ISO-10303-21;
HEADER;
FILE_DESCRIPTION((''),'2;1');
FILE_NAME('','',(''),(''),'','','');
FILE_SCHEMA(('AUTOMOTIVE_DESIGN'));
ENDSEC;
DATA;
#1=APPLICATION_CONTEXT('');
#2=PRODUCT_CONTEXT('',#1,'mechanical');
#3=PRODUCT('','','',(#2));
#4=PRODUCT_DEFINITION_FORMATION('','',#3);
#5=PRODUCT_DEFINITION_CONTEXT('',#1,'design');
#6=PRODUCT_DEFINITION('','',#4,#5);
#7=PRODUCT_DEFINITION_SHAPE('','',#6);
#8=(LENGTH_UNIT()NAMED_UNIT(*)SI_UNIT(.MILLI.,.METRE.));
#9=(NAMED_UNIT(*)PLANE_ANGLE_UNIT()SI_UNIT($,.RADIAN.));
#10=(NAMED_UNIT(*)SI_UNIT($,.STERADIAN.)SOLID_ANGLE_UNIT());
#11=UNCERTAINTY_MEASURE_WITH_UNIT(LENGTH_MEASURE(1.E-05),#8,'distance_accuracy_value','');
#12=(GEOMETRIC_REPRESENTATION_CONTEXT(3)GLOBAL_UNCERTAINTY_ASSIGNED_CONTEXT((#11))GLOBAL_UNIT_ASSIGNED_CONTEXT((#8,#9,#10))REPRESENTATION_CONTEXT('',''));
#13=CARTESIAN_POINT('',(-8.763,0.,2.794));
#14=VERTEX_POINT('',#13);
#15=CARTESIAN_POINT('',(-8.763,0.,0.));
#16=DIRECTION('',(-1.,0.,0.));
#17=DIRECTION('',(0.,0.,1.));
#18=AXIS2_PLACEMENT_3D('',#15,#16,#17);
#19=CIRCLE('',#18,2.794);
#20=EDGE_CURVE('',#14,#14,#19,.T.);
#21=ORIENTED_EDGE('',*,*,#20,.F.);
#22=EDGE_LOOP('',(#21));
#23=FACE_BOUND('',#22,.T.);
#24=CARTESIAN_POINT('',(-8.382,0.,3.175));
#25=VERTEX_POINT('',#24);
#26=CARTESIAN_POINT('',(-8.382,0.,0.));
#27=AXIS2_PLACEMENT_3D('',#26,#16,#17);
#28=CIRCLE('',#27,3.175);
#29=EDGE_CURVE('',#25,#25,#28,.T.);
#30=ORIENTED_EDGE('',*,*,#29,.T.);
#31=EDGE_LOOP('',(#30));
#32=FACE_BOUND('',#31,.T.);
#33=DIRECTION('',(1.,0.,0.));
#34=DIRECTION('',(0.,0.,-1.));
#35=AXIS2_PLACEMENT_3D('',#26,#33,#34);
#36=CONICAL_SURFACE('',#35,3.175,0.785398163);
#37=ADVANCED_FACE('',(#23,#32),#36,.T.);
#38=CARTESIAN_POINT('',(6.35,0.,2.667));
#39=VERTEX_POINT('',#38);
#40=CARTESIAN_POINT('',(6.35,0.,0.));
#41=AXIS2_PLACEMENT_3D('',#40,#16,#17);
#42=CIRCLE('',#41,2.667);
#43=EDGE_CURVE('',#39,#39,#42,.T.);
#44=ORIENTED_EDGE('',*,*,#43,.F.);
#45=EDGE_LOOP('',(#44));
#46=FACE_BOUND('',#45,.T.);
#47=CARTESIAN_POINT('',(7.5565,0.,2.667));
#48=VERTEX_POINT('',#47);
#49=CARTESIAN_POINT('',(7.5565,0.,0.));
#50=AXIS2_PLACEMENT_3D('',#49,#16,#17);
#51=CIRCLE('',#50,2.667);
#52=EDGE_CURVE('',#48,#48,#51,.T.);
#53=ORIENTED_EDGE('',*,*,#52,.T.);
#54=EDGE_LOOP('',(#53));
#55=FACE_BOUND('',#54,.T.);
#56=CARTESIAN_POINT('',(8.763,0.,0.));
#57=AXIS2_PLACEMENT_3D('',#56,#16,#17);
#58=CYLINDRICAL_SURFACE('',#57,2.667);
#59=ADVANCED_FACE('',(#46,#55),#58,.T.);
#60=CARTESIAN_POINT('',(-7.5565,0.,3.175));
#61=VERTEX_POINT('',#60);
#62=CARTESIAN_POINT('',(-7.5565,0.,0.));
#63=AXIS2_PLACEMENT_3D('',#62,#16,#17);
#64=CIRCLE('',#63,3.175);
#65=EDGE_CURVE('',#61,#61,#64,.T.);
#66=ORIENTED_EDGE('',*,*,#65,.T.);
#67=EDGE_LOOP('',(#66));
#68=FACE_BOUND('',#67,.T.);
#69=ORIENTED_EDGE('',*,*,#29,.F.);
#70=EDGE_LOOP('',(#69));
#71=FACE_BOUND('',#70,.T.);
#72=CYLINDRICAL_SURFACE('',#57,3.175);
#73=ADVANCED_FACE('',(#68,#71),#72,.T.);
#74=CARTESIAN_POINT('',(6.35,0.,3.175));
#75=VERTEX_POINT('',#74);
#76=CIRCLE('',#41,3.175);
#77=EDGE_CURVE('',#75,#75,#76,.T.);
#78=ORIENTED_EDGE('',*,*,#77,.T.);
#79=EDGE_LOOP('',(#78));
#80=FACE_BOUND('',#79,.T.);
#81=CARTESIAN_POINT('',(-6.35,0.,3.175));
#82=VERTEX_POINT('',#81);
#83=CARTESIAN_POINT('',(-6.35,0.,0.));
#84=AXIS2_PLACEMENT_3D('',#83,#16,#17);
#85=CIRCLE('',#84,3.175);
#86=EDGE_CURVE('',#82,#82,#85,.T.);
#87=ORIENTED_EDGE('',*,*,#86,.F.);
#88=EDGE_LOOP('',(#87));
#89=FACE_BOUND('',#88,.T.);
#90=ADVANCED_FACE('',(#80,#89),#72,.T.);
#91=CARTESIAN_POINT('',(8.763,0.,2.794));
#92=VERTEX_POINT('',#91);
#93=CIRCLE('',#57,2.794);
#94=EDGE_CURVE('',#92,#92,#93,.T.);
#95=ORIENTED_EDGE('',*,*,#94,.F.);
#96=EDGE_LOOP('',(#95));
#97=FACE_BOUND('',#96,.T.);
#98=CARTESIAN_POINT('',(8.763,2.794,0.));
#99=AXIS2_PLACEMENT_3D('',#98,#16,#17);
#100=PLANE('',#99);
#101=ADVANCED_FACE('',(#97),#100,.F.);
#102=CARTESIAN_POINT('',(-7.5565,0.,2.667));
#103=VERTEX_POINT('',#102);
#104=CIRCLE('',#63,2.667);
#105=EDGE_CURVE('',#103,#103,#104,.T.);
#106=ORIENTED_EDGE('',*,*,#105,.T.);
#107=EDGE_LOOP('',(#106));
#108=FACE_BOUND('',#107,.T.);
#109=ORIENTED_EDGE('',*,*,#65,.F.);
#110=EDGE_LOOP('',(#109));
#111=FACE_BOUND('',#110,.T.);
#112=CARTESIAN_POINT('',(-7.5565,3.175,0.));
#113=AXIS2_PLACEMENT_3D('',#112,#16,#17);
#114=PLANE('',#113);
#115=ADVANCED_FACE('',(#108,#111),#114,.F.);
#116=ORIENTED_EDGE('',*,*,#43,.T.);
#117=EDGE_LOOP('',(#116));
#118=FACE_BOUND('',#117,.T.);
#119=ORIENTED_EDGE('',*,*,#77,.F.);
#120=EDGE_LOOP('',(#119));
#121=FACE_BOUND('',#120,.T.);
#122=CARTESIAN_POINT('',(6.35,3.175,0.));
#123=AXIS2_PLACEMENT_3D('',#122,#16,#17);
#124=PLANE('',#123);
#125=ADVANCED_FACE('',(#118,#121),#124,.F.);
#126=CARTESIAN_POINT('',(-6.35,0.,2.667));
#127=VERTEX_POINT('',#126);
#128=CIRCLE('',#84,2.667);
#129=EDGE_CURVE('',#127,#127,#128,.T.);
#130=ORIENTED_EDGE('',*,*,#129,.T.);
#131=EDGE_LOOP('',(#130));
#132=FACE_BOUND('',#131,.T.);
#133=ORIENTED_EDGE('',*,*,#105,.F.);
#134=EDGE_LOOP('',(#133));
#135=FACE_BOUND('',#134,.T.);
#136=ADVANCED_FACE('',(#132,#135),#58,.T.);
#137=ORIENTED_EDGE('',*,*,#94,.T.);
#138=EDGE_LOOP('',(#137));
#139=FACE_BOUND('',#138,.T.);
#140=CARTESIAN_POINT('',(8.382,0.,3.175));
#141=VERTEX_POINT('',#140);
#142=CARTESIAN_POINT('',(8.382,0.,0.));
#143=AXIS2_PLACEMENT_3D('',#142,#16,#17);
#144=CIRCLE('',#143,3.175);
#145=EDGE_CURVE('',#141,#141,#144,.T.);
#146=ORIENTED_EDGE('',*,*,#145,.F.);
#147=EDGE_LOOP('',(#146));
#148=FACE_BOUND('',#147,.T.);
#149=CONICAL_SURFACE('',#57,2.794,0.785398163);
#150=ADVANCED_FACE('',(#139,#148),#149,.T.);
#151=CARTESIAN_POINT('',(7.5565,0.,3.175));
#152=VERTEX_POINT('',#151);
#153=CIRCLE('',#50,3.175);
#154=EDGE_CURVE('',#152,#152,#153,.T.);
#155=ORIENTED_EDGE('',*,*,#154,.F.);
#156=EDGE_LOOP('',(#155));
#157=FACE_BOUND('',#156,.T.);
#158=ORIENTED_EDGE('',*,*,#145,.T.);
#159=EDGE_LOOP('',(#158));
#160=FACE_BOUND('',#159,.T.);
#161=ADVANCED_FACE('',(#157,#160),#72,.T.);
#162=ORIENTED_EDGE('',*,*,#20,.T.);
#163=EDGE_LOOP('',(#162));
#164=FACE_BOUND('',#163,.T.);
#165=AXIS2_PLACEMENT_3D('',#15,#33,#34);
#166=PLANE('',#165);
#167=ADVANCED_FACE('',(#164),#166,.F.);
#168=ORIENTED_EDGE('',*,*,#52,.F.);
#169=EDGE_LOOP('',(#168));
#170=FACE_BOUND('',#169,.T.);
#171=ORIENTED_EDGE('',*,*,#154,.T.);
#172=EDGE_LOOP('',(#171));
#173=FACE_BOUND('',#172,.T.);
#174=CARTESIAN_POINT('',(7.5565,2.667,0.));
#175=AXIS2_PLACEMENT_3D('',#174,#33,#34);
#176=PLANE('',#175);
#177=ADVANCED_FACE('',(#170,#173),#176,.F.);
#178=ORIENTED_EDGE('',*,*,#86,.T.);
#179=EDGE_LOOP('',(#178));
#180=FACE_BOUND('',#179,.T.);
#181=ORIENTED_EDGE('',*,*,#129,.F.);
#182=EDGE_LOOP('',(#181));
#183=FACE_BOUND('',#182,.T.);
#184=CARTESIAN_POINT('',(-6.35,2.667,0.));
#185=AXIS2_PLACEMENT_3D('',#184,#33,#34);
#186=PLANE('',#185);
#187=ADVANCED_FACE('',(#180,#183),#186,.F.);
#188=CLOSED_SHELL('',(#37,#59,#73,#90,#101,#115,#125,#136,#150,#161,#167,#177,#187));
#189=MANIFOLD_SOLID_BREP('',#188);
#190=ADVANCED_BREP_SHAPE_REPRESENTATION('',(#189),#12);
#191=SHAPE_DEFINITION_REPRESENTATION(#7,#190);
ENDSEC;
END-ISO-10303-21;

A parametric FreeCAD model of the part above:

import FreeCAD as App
import Part
import Sketcher
from FreeCAD import Vector
Q = App.Units.Quantity

doc = App.newDocument("Part")
params = doc.addObject("Spreadsheet::Sheet", "Params")
for row, (alias, value) in enumerate([
    ("sketch1_width", "0.5 in"),
    ("sketch1_width2", "0.69 in"),
    ("sketch1_height", "0.11 in"),
    ("sketch1_height2", "0.02 in"),
    ("revolution_angle", "360 deg"),
], start=1):
    params.set(f"A{row}", alias)
    params.set(f"B{row}", "=" + value)
    params.setAlias(f"B{row}", alias)

body = doc.addObject("PartDesign::Body", "Body")

# Sketch on XY plane
sketch1 = body.newObject("Sketcher::SketchObject", "Sketch")
sketch1.AttachmentSupport = (doc.getObject("XY_Plane"), [""])
sketch1.MapMode = "FlatFace"
sketch1.addGeometry(Part.LineSegment(Vector(-8.8, 2.8, 0), Vector(-8.8, 0, 0)), False)
sketch1.addGeometry(Part.LineSegment(Vector(-8.8, 0, 0), Vector(8.8, 0, 0)), False)
sketch1.addGeometry(Part.LineSegment(Vector(8.8, 0, 0), Vector(8.8, 2.8, 0)), False)
sketch1.addGeometry(Part.LineSegment(Vector(8.8, 2.8, 0), Vector(8.4, 3.2, 0)), False)
sketch1.addGeometry(Part.LineSegment(Vector(8.4, 3.2, 0), Vector(7.6, 3.2, 0)), False)
sketch1.addGeometry(Part.LineSegment(Vector(7.6, 3.2, 0), Vector(7.6, 2.7, 0)), False)
sketch1.addGeometry(Part.LineSegment(Vector(7.6, 2.7, 0), Vector(6.3, 2.7, 0)), False)
sketch1.addGeometry(Part.LineSegment(Vector(6.3, 2.7, 0), Vector(6.3, 3.2, 0)), False)
sketch1.addGeometry(Part.LineSegment(Vector(6.3, 3.2, 0), Vector(-6.3, 3.2, 0)), False)
sketch1.addGeometry(Part.LineSegment(Vector(-6.3, 3.2, 0), Vector(-6.3, 2.7, 0)), False)
sketch1.addGeometry(Part.LineSegment(Vector(-6.3, 2.7, 0), Vector(-7.6, 2.7, 0)), False)
sketch1.addGeometry(Part.LineSegment(Vector(-7.6, 2.7, 0), Vector(-7.6, 3.2, 0)), False)
sketch1.addGeometry(Part.LineSegment(Vector(-7.6, 3.2, 0), Vector(-8.4, 3.2, 0)), False)
sketch1.addGeometry(Part.LineSegment(Vector(-8.4, 3.2, 0), Vector(-8.8, 2.8, 0)), False)
sketch1.addConstraint(Sketcher.Constraint("Coincident", 0, 2, 1, 1))
sketch1.addConstraint(Sketcher.Constraint("Coincident", 1, 2, 2, 1))
sketch1.addConstraint(Sketcher.Constraint("Coincident", 2, 2, 3, 1))
sketch1.addConstraint(Sketcher.Constraint("Coincident", 3, 2, 4, 1))
sketch1.addConstraint(Sketcher.Constraint("Coincident", 4, 2, 5, 1))
sketch1.addConstraint(Sketcher.Constraint("Coincident", 5, 2, 6, 1))
sketch1.addConstraint(Sketcher.Constraint("Coincident", 6, 2, 7, 1))
sketch1.addConstraint(Sketcher.Constraint("Coincident", 7, 2, 8, 1))
sketch1.addConstraint(Sketcher.Constraint("Coincident", 8, 2, 9, 1))
sketch1.addConstraint(Sketcher.Constraint("Coincident", 9, 2, 10, 1))
sketch1.addConstraint(Sketcher.Constraint("Coincident", 10, 2, 11, 1))
sketch1.addConstraint(Sketcher.Constraint("Coincident", 11, 2, 12, 1))
sketch1.addConstraint(Sketcher.Constraint("Coincident", 12, 2, 13, 1))
sketch1.addConstraint(Sketcher.Constraint("Coincident", 13, 2, 0, 1))
sketch1.addConstraint(Sketcher.Constraint("Vertical", 0))
sketch1.addConstraint(Sketcher.Constraint("Horizontal", 1))
sketch1.addConstraint(Sketcher.Constraint("Vertical", 2))
sketch1.addConstraint(Sketcher.Constraint("Horizontal", 4))
sketch1.addConstraint(Sketcher.Constraint("Vertical", 5))
sketch1.addConstraint(Sketcher.Constraint("Horizontal", 6))
sketch1.addConstraint(Sketcher.Constraint("Vertical", 7))
sketch1.addConstraint(Sketcher.Constraint("Horizontal", 8))
sketch1.addConstraint(Sketcher.Constraint("Vertical", 9))
sketch1.addConstraint(Sketcher.Constraint("Horizontal", 10))
sketch1.addConstraint(Sketcher.Constraint("Vertical", 11))
sketch1.addConstraint(Sketcher.Constraint("Horizontal", 12))
sketch1.addConstraint(Sketcher.Constraint("Symmetric", 0, 2, 1, 2, -1, 1))
sketch1.addConstraint(Sketcher.Constraint("Symmetric", 6, 2, 9, 2, -2))
sketch1.addConstraint(Sketcher.Constraint("Symmetric", 4, 2, 11, 2, -2))
sketch1.addConstraint(Sketcher.Constraint("Perpendicular", 3, 13))
sketch1.addConstraint(Sketcher.Constraint("Horizontal", 4, 2, 7, 2))
sketch1.addConstraint(Sketcher.Constraint("Horizontal", 2, 2, 13, 2))
sketch1.addConstraint(Sketcher.Constraint("Equal", 4, 12))
sketch1.addConstraint(Sketcher.Constraint("DistanceX", 8, 2, 8, 1, Q("0.5 in")))
sketch1.addConstraint(Sketcher.Constraint("DistanceX", 1, 1, 1, 2, Q("0.69 in")))
sketch1.addConstraint(Sketcher.Constraint("DistanceY", 0, 2, 0, 1, Q("0.11 in")))
sketch1.addConstraint(Sketcher.Constraint("DistanceY", 5, 2, 5, 1, Q("0.02 in")))
sketch1.addConstraint(Sketcher.Constraint("DistanceX", -1, 1, 3, 2, Q("0.33 in")))
sketch1.addConstraint(Sketcher.Constraint("DistanceX", 4, 2, 4, 1, Q("0.0325 in")))
sketch1.setExpression("Constraints[33]", "Params.sketch1_width")
sketch1.setExpression("Constraints[34]", "Params.sketch1_width2")
sketch1.setExpression("Constraints[35]", "Params.sketch1_height")
sketch1.setExpression("Constraints[36]", "Params.sketch1_height2")
revolution = body.newObject("PartDesign::Revolution", "Revolution")
revolution.Profile = sketch1
revolution.ReferenceAxis = (sketch1, ["H_Axis"])
revolution.setExpression("Angle", "Params.revolution_angle")

doc.recompute()
